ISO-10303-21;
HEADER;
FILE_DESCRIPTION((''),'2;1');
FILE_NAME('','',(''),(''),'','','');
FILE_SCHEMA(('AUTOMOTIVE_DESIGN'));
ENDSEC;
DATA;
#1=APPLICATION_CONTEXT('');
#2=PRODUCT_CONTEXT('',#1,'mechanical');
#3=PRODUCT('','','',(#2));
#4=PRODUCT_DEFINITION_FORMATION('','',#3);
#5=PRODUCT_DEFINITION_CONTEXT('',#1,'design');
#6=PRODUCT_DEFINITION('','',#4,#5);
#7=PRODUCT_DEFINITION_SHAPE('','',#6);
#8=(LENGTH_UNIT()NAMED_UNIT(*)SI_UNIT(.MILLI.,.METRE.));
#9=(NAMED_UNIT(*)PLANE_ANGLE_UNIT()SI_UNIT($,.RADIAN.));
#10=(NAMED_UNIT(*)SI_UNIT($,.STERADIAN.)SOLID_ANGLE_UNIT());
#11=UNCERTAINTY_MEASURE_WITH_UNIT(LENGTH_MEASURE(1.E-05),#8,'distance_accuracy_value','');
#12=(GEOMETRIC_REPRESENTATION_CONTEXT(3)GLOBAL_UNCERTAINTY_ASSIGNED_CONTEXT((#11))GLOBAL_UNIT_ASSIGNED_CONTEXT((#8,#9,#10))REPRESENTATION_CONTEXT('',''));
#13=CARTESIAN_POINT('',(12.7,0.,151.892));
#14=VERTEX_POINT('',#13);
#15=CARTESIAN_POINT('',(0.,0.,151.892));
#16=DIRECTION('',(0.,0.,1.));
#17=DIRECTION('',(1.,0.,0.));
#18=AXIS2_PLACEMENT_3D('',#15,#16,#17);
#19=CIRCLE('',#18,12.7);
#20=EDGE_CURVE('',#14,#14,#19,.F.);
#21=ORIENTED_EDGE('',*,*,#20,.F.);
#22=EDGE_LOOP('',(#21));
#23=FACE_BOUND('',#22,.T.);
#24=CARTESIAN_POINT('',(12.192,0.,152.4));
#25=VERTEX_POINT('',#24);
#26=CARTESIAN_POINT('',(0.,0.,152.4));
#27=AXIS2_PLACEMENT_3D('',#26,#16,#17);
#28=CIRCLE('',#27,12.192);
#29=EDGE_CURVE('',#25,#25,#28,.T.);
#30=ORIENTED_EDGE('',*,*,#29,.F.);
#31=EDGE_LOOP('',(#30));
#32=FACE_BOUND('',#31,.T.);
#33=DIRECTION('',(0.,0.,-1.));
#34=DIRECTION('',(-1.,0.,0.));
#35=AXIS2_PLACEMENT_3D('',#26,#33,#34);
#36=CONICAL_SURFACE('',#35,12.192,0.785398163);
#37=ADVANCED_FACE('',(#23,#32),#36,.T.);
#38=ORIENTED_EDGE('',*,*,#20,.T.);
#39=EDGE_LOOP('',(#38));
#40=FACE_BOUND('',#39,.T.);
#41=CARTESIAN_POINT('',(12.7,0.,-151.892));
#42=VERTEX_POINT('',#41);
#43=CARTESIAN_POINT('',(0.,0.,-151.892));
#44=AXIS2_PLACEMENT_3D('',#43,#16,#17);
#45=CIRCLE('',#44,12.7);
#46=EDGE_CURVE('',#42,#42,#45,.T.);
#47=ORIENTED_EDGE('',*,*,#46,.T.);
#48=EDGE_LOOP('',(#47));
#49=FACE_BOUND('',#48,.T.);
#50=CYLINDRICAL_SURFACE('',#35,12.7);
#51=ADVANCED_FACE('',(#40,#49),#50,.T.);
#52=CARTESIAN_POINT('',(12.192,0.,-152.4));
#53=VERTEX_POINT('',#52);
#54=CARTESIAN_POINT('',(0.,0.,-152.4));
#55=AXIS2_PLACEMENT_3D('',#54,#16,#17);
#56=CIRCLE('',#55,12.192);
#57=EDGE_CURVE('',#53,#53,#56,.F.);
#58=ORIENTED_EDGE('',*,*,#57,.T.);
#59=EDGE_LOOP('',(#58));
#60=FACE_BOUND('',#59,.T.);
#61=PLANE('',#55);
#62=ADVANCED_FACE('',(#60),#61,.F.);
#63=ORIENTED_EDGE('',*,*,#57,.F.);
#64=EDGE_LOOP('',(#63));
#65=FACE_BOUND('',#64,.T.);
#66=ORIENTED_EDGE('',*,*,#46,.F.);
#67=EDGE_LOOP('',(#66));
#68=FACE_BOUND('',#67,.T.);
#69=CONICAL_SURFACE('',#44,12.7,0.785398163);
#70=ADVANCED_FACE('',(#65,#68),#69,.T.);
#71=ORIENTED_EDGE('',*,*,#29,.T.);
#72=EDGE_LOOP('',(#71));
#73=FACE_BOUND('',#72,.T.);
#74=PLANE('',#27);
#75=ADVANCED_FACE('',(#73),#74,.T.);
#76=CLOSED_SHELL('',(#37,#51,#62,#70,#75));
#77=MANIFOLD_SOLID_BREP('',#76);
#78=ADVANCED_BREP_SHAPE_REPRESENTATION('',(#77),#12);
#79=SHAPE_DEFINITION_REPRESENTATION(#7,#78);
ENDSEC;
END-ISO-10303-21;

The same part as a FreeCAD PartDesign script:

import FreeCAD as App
import Part
import Sketcher

V = App.Vector
Q = App.Units.Quantity


def edges_at(feature, points):
    """Names of the edges that pass closest to the given points."""
    edges = feature.Shape.Edges
    near = lambda p: min(range(len(edges)), key=lambda i: edges[i].distToShape(Part.Vertex(*p))[0])
    return sorted({f"Edge{near(p) + 1}" for p in points})

doc = App.newDocument("Part")
params = doc.addObject("Spreadsheet::Sheet", "Params")
for row, (alias, value) in enumerate([
    ("sketch1_diameter", "1 in"),
    ("pad1_length", "6 in"),
    ("pad1_length2", "6 in"),
    ("chamfer_size", "0.02 in"),
], start=1):
    params.set(f"A{row}", alias)
    params.set(f"B{row}", "=" + value)
    params.setAlias(f"B{row}", alias)

body = doc.addObject("PartDesign::Body", "Body")

# Sketch on XY plane
sketch1 = body.newObject("Sketcher::SketchObject", "Sketch")
sketch1.AttachmentSupport = (doc.getObject("XY_Plane"), [""])
sketch1.MapMode = "FlatFace"
sketch1.addGeometry(Part.Circle(V(0, 0, 0), V(0, 0, 1), 13), False)
sketch1.addConstraint([
    Sketcher.Constraint("Coincident", 0, 3, -1, 1),
    Sketcher.Constraint("Diameter", 0, Q("1 in")),
])
sketch1.setExpression("Constraints[1]", "Params.sketch1_diameter")
pad1 = body.newObject("PartDesign::Pad", "Pad")
pad1.Profile = sketch1
pad1.Type = "TwoLengths"
pad1.setExpression("Length", "Params.pad1_length")
pad1.setExpression("Length2", "Params.pad1_length2")
doc.recompute()

chamfer = body.newObject("PartDesign::Chamfer", "Chamfer")
chamfer.Base = (pad1, edges_at(pad1, [(-12.7, 0, -152.4), (-12.7, 0, 152.4)]))
chamfer.setExpression("Size", "Params.chamfer_size")

doc.recompute()
